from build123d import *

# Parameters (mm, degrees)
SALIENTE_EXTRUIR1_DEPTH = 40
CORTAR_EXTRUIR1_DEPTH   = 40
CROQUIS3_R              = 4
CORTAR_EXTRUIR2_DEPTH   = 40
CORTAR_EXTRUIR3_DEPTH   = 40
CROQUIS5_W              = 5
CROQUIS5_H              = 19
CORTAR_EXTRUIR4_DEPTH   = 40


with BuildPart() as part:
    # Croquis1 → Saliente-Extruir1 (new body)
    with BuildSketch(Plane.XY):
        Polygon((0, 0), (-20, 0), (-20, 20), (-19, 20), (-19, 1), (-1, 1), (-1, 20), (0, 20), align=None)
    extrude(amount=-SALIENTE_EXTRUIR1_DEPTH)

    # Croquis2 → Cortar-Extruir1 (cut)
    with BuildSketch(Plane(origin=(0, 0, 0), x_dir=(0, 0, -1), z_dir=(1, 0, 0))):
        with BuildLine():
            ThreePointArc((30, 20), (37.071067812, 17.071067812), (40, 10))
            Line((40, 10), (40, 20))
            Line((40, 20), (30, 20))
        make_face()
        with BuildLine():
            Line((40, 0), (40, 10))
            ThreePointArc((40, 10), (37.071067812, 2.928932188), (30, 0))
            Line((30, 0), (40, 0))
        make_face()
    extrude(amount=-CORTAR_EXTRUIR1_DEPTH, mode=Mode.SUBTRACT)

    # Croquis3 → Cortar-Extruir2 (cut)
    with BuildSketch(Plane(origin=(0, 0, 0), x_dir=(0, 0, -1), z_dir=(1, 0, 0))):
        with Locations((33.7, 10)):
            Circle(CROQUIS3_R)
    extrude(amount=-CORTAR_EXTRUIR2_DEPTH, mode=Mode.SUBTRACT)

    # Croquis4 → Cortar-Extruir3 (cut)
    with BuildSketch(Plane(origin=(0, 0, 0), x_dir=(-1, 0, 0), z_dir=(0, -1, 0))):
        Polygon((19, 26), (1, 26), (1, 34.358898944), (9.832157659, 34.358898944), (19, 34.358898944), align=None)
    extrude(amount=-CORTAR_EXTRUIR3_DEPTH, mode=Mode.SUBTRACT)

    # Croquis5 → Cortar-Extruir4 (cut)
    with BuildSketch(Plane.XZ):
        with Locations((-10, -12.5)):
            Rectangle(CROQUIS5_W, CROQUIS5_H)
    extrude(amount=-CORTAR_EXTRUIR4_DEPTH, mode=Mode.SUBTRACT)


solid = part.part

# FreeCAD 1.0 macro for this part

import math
import FreeCAD as App
import Part
import Sketcher

V = App.Vector

doc = App.newDocument("Part")
params = doc.addObject("Spreadsheet::Sheet", "Params")
for row, (alias, value) in enumerate([
    ("sketch1_width", "20 mm"),
    ("sketch1_width2", "1 mm"),
    ("sketch1_height", "19 mm"),
    ("pad1_length", "40 mm"),
    ("sketch2_radius", "10 mm"),
    ("pocket1_length", "40 mm"),
    ("sketch3_diameter", "8 mm"),
    ("pocket2_length", "40 mm"),
    ("sketch4_width", "18 mm"),
    ("pocket3_length", "40 mm"),
    ("sketch5_width", "5 mm"),
    ("sketch5_height", "19 mm"),
    ("pocket4_length", "40 mm"),
], start=1):
    params.set(f"A{row}", alias)
    params.set(f"B{row}", "=" + value)
    params.setAlias(f"B{row}", alias)

body = doc.addObject("PartDesign::Body", "Body")

sketch1 = body.newObject("Sketcher::SketchObject", "Sketch")
sketch1.AttachmentSupport = (doc.getObject("XY_Plane"), [""])
sketch1.MapMode = "FlatFace"
sketch1.addGeometry([
    Part.LineSegment(V(-20, 0, 0), V(0, 0, 0)),
    Part.LineSegment(V(0, 0, 0), V(0, 20, 0)),
    Part.LineSegment(V(0, 20, 0), V(-1, 20, 0)),
    Part.LineSegment(V(-1, 20, 0), V(-1, 1, 0)),
    Part.LineSegment(V(-1, 1, 0), V(-19, 1, 0)),
    Part.LineSegment(V(-19, 1, 0), V(-19, 20, 0)),
    Part.LineSegment(V(-19, 20, 0), V(-20, 20, 0)),
    Part.LineSegment(V(-20, 20, 0), V(-20, 0, 0)),
], False)
sketch1.addConstraint([
    Sketcher.Constraint("Coincident", 0, 2, 1, 1),
    Sketcher.Constraint("Coincident", 1, 2, 2, 1),
    Sketcher.Constraint("Coincident", 2, 2, 3, 1),
    Sketcher.Constraint("Coincident", 3, 2, 4, 1),
    Sketcher.Constraint("Coincident", 4, 2, 5, 1),
    Sketcher.Constraint("Coincident", 5, 2, 6, 1),
    Sketcher.Constraint("Coincident", 6, 2, 7, 1),
    Sketcher.Constraint("Coincident", 7, 2, 0, 1),
    Sketcher.Constraint("Horizontal", 0),
    Sketcher.Constraint("Vertical", 1),
    Sketcher.Constraint("Horizontal", 2),
    Sketcher.Constraint("Vertical", 3),
    Sketcher.Constraint("Horizontal", 4),
    Sketcher.Constraint("Vertical", 5),
    Sketcher.Constraint("Horizontal", 6),
    Sketcher.Constraint("Vertical", 7),
    Sketcher.Constraint("Coincident", 0, 2, -1, 1),
    Sketcher.Constraint("Horizontal", 2, 2, 5, 2),
    Sketcher.Constraint("Equal", 2, 6),
    Sketcher.Constraint("Equal", 0, 1),
    Sketcher.Constraint("DistanceX", 0, 1, 0, 2, 20.0),
    Sketcher.Constraint("DistanceX", 2, 2, 2, 1, 1.0),
    Sketcher.Constraint("DistanceY", 3, 2, 3, 1, 19.0),
])
sketch1.setExpression("Constraints[20]", "Params.sketch1_width")
sketch1.setExpression("Constraints[21]", "Params.sketch1_width2")
sketch1.setExpression("Constraints[22]", "Params.sketch1_height")
pad1 = body.newObject("PartDesign::Pad", "Pad")
pad1.Profile = sketch1
pad1.setExpression("Length", "Params.pad1_length")
pad1.Reversed = True

sketch2 = body.newObject("Sketcher::SketchObject", "Sketch001")
sketch2.AttachmentSupport = (doc.getObject("YZ_Plane"), [""])
sketch2.MapMode = "FlatFace"
sketch2.addGeometry([
    Part.ArcOfCircle(Part.Circle(V(10, -30, 0), V(0, 0, 1), 10), math.radians(-90), math.radians(0)),
    Part.LineSegment(V(10, -40, 0), V(20, -40, 0)),
    Part.LineSegment(V(20, -40, 0), V(20, -30, 0)),
    Part.LineSegment(V(0, -40, 0), V(10, -40, 0)),
    Part.ArcOfCircle(Part.Circle(V(10, -30, 0), V(0, 0, 1), 10), math.radians(180), math.radians(270)),
    Part.LineSegment(V(0, -30, 0), V(0, -40, 0)),
], False)
sketch2.addConstraint([
    Sketcher.Constraint("Tangent", 0, 1, 1, 1),
    Sketcher.Constraint("Coincident", 1, 2, 2, 1),
    Sketcher.Constraint("Tangent", 2, 2, 0, 2),
    Sketcher.Constraint("Tangent", 3, 2, 4, 2),
    Sketcher.Constraint("Tangent", 4, 1, 5, 1),
    Sketcher.Constraint("Coincident", 5, 2, 3, 1),
    Sketcher.Constraint("Horizontal", 1),
    Sketcher.Constraint("Vertical", 2),
    Sketcher.Constraint("Horizontal", 3),
    Sketcher.Constraint("Vertical", 5),
    Sketcher.Constraint("Coincident", 4, 3, 0, 3),
    Sketcher.Constraint("Equal", 0, 4),
    Sketcher.Constraint("PointOnObject", 4, 1, -2),
    Sketcher.Constraint("Radius", 0, 10.0),
    Sketcher.Constraint("DistanceY", 0, 3, -1, 1, 30.0),
])
sketch2.setExpression("Constraints[13]", "Params.sketch2_radius")
pocket1 = body.newObject("PartDesign::Pocket", "Pocket")
pocket1.Profile = sketch2
pocket1.setExpression("Length", "Params.pocket1_length")

sketch3 = body.newObject("Sketcher::SketchObject", "Sketch002")
sketch3.AttachmentSupport = (doc.getObject("YZ_Plane"), [""])
sketch3.MapMode = "FlatFace"
sketch3.addGeometry(Part.Circle(V(10, -33.7, 0), V(0, 0, 1), 4), False)
sketch3.addConstraint([
    Sketcher.Constraint("Diameter", 0, 8.0),
    Sketcher.Constraint("DistanceX", -1, 1, 0, 3, 10.0),
    Sketcher.Constraint("DistanceY", 0, 3, -1, 1, 33.7),
])
sketch3.setExpression("Constraints[0]", "Params.sketch3_diameter")
pocket2 = body.newObject("PartDesign::Pocket", "Pocket001")
pocket2.Profile = sketch3
pocket2.setExpression("Length", "Params.pocket2_length")

sketch4 = body.newObject("Sketcher::SketchObject", "Sketch003")
sketch4.AttachmentSupport = (doc.getObject("XZ_Plane"), [""])
sketch4.MapMode = "FlatFace"
sketch4.addGeometry([
    Part.LineSegment(V(-1, -26, 0), V(-19, -26, 0)),
    Part.LineSegment(V(-19, -26, 0), V(-19, -34, 0)),
    Part.LineSegment(V(-19, -34, 0), V(-1, -34, 0)),
    Part.LineSegment(V(-1, -34, 0), V(-1, -26, 0)),
], False)
sketch4.addConstraint([
    Sketcher.Constraint("Coincident", 0, 2, 1, 1),
    Sketcher.Constraint("Coincident", 1, 2, 2, 1),
    Sketcher.Constraint("Coincident", 2, 2, 3, 1),
    Sketcher.Constraint("Coincident", 3, 2, 0, 1),
    Sketcher.Constraint("Horizontal", 0),
    Sketcher.Constraint("Vertical", 1),
    Sketcher.Constraint("Horizontal", 2),
    Sketcher.Constraint("Vertical", 3),
    Sketcher.Constraint("DistanceX", 0, 2, 0, 1, 18.0),
    Sketcher.Constraint("DistanceX", 0, 2, -1, 1, 19.0),
    Sketcher.Constraint("DistanceY", 0, 2, -1, 1, 26.0),
    Sketcher.Constraint("DistanceY", 1, 2, 1, 1, 8.358899),
])
sketch4.setExpression("Constraints[8]", "Params.sketch4_width")
pocket3 = body.newObject("PartDesign::Pocket", "Pocket002")
pocket3.Profile = sketch4
pocket3.setExpression("Length", "Params.pocket3_length")

sketch5 = body.newObject("Sketcher::SketchObject", "Sketch004")
sketch5.AttachmentSupport = (doc.getObject("XZ_Plane"), [""])
sketch5.MapMode = "FlatFace"
sketch5.addGeometry([
    Part.LineSegment(V(-12, -3, 0), V(-12, -22, 0)),
    Part.LineSegment(V(-12, -22, 0), V(-8, -22, 0)),
    Part.LineSegment(V(-8, -22, 0), V(-8, -3, 0)),
    Part.LineSegment(V(-8, -3, 0), V(-12, -3, 0)),
], False)
sketch5.addConstraint([
    Sketcher.Constraint("Coincident", 0, 2, 1, 1),
    Sketcher.Constraint("Coincident", 1, 2, 2, 1),
    Sketcher.Constraint("Coincident", 2, 2, 3, 1),
    Sketcher.Constraint("Coincident", 3, 2, 0, 1),
    Sketcher.Constraint("Vertical", 0),
    Sketcher.Constraint("Horizontal", 1),
    Sketcher.Constraint("Vertical", 2),
    Sketcher.Constraint("Horizontal", 3),
    Sketcher.Constraint("DistanceX", 1, 1, 1, 2, 5.0),
    Sketcher.Constraint("DistanceY", 0, 2, 0, 1, 19.0),
    Sketcher.Constraint("DistanceY", 0, 2, -1, 1, 22.0),
    Sketcher.Constraint("DistanceX", 0, 2, -1, 1, 12.5),
])
sketch5.setExpression("Constraints[8]", "Params.sketch5_width")
sketch5.setExpression("Constraints[9]", "Params.sketch5_height")
pocket4 = body.newObject("PartDesign::Pocket", "Pocket003")
pocket4.Profile = sketch5
pocket4.setExpression("Length", "Params.pocket4_length")

doc.recompute()
